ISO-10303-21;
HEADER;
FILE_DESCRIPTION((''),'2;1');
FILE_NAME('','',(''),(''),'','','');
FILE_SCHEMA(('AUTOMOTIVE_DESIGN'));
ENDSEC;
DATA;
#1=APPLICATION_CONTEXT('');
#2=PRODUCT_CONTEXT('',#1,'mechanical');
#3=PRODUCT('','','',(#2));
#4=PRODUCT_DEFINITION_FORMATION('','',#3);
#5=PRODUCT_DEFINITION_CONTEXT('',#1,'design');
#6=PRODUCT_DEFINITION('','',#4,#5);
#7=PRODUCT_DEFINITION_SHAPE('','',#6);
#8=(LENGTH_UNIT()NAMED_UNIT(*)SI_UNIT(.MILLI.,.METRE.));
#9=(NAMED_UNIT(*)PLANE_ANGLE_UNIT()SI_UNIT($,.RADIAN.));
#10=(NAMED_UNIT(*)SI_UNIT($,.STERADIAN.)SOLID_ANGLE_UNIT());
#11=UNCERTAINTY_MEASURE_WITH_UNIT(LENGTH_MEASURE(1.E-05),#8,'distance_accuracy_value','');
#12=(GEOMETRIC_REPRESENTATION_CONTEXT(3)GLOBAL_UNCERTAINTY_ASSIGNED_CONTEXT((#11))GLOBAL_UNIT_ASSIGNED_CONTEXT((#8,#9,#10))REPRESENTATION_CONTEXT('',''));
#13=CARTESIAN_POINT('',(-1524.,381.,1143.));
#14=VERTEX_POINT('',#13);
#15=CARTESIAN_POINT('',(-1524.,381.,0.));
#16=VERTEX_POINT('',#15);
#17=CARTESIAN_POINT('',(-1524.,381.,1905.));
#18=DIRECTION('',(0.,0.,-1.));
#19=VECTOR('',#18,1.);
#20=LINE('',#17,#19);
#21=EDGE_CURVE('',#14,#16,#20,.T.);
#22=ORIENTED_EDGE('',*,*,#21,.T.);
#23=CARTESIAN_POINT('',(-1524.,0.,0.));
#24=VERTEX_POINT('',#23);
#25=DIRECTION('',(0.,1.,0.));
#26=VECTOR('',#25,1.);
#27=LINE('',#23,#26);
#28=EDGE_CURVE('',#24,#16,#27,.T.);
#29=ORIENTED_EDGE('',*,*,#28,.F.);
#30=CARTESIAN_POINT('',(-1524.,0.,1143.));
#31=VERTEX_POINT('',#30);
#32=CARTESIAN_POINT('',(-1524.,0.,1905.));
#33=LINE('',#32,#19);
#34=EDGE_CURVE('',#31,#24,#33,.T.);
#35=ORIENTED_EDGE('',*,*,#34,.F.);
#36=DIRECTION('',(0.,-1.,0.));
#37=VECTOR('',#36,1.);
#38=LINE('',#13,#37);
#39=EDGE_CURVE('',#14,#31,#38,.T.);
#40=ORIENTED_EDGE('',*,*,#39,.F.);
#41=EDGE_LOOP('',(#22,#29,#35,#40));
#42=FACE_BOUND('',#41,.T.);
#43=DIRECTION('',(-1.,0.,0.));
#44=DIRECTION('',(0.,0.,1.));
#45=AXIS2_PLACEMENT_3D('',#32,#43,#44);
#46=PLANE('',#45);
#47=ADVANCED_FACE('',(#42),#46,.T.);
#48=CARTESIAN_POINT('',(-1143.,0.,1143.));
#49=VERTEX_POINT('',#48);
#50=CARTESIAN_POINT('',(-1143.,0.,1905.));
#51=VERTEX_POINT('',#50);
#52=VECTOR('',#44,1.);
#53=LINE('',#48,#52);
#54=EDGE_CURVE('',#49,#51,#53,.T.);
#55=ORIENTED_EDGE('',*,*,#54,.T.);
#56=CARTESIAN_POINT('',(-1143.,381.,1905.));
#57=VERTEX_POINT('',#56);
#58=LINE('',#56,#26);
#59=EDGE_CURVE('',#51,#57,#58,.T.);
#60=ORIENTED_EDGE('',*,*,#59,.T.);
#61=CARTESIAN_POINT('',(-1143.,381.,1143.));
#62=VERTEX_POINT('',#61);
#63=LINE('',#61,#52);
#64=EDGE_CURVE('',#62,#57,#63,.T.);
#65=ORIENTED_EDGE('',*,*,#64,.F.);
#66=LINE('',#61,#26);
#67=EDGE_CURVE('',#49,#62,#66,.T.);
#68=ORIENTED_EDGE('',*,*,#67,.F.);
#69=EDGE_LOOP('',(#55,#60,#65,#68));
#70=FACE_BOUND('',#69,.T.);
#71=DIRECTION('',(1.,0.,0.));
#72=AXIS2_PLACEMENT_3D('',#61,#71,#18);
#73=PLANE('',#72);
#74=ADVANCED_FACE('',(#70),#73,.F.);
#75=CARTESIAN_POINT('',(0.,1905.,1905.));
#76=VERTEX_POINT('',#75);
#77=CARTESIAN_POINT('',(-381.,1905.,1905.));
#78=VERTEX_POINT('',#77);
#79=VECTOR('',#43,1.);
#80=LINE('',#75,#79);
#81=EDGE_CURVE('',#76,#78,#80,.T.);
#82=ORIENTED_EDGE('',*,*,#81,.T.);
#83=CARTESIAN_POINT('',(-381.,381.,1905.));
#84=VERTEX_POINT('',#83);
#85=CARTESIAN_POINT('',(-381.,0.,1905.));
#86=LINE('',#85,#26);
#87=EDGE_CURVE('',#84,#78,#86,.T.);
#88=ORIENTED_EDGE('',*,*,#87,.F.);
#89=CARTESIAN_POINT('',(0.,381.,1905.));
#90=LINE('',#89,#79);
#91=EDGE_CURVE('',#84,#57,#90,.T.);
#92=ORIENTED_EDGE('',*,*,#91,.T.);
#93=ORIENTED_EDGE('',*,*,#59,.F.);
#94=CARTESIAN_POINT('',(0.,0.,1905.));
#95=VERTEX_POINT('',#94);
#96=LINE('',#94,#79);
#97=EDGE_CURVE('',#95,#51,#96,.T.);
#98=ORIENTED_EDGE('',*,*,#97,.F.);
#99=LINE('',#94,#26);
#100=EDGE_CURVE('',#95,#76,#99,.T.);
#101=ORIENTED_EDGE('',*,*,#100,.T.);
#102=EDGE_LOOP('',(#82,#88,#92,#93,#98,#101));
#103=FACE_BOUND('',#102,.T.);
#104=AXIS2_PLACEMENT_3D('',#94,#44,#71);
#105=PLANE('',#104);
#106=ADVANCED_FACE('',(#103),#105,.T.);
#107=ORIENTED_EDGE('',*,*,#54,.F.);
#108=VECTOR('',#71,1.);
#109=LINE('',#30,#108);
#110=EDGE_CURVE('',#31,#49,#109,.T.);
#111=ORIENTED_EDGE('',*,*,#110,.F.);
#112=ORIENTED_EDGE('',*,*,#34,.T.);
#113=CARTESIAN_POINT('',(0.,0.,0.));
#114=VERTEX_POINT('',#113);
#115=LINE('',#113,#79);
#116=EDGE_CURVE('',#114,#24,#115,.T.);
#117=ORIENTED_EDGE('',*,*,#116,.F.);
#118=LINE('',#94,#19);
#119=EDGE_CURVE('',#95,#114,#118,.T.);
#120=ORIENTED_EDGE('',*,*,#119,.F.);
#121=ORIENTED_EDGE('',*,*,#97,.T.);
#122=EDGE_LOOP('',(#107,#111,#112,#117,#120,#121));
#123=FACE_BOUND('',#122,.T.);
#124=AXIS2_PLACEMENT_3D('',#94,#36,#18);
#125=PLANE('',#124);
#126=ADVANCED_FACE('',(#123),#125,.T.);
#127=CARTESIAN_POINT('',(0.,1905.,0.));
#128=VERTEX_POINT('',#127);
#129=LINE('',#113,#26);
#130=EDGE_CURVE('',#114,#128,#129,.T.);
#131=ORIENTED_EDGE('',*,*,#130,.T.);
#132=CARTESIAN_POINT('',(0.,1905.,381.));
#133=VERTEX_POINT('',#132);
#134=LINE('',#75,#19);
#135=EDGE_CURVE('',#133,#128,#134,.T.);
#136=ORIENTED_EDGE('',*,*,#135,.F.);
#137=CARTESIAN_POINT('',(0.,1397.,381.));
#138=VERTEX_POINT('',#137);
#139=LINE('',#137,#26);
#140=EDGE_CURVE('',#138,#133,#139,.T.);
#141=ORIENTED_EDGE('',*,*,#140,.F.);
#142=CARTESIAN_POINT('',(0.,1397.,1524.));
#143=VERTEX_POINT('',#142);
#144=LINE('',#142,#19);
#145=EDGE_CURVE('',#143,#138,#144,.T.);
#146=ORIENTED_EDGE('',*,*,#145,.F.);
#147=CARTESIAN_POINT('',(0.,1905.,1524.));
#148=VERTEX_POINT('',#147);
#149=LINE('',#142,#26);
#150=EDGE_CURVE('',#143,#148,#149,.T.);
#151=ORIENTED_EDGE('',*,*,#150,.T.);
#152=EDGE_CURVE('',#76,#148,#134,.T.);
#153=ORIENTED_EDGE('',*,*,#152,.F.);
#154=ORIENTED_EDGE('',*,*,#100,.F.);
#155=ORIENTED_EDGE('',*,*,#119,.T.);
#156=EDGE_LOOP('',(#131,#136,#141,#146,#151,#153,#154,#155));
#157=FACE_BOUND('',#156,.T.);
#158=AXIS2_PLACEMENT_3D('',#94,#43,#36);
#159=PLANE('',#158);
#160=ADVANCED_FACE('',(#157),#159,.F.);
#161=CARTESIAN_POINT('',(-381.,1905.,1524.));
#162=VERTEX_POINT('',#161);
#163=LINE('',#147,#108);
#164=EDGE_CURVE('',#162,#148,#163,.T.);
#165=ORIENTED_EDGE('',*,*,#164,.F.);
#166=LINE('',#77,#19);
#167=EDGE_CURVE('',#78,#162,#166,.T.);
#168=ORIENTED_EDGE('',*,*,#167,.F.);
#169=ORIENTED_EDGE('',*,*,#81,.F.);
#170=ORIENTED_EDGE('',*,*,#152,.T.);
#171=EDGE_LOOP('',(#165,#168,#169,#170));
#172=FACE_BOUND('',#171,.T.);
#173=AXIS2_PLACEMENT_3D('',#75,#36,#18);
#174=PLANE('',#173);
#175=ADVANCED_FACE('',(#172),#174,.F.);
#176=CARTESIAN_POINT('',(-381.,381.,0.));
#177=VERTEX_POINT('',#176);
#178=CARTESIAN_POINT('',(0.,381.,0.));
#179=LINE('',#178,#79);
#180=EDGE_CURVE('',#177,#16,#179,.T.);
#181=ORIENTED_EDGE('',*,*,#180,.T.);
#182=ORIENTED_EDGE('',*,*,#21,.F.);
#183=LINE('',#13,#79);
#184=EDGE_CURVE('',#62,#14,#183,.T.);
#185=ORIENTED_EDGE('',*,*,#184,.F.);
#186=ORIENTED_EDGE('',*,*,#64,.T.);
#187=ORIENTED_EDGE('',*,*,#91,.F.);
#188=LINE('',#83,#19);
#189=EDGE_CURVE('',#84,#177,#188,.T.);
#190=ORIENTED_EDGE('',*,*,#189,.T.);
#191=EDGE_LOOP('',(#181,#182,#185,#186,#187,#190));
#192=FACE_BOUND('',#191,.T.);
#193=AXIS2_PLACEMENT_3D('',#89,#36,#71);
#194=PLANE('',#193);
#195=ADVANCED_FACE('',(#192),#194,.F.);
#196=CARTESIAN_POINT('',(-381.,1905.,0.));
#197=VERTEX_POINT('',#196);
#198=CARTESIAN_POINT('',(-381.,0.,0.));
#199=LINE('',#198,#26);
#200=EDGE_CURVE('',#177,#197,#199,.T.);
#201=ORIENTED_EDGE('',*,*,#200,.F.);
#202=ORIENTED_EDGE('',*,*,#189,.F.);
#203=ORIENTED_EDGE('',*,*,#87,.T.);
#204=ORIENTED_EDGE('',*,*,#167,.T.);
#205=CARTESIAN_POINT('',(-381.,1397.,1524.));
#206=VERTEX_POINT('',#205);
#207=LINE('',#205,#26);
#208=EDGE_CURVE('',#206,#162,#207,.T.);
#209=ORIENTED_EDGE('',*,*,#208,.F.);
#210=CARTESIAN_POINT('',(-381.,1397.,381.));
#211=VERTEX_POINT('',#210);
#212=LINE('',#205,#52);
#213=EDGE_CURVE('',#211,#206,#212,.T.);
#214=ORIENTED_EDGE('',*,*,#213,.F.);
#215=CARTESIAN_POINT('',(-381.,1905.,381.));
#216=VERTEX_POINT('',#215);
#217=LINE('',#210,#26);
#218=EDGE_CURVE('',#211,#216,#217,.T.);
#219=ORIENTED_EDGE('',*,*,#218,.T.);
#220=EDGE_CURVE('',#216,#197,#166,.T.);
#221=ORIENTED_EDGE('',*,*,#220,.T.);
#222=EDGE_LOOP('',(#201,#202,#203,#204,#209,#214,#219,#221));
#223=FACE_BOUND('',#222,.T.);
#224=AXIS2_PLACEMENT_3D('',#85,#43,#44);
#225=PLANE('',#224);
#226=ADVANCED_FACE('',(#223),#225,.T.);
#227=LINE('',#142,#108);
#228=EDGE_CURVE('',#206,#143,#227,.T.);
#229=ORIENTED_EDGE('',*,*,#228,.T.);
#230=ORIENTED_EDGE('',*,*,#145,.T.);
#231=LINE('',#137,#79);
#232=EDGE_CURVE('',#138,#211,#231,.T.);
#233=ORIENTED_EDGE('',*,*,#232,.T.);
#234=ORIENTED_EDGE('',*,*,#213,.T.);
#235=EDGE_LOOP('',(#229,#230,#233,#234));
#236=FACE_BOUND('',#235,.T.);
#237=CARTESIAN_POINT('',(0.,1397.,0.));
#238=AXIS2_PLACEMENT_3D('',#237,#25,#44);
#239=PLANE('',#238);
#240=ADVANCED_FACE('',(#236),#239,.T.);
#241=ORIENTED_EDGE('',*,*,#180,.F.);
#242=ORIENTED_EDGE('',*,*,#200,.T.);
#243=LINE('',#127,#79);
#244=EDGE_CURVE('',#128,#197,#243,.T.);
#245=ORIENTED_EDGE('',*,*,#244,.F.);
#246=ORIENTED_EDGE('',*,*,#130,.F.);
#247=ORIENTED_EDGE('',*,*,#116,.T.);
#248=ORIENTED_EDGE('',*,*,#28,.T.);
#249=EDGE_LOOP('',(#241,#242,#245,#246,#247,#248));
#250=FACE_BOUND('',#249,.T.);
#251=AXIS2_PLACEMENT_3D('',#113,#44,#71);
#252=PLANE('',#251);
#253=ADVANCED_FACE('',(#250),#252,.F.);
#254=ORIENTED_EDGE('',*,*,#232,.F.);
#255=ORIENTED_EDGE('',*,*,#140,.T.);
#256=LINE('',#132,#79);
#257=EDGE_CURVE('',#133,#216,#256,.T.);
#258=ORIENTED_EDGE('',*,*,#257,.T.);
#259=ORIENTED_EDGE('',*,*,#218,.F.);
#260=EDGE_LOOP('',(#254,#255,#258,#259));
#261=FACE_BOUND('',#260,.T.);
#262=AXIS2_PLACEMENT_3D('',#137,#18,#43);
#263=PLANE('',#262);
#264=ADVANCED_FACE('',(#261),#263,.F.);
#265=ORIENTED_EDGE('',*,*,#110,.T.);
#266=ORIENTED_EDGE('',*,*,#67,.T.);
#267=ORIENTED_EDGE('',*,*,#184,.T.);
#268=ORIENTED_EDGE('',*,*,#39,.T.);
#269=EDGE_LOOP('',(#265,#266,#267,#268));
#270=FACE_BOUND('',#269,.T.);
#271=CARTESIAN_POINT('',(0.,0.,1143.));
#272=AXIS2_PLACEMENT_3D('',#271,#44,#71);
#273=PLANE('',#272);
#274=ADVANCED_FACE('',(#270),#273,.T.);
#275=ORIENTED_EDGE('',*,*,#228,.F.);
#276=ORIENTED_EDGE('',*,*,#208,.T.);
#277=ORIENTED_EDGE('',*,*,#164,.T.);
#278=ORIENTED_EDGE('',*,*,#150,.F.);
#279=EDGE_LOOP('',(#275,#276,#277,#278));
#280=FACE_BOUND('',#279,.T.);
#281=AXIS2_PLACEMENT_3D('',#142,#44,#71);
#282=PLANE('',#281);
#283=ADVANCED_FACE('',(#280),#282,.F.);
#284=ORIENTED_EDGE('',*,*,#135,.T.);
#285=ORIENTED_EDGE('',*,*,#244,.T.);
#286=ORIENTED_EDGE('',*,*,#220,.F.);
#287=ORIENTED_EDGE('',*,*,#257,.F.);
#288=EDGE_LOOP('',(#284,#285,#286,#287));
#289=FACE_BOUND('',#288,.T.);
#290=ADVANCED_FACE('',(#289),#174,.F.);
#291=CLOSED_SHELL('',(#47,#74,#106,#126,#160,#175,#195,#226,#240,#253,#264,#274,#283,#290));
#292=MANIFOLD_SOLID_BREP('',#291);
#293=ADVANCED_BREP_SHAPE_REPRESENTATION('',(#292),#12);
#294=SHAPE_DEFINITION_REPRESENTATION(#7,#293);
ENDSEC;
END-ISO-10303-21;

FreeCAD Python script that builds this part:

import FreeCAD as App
import Part
import Sketcher

V = App.Vector
Q = App.Units.Quantity


def add_polygon(sketch, points):
    """Adds a closed chain of lines whose ends are joined by coincident constraints."""
    first, n = sketch.GeometryCount, len(points)
    for a, b in zip(points, points[1:] + points[:1]):
        sketch.addGeometry(Part.LineSegment(App.Vector(*a, 0), App.Vector(*b, 0)), False)
    for i in range(n):
        sketch.addConstraint(Sketcher.Constraint("Coincident", first + i, 2, first + (i + 1) % n, 1))

doc = App.newDocument("Part")
params = doc.addObject("Spreadsheet::Sheet", "Params")
for row, (alias, value) in enumerate([
    ("sketch1_width", "15 in"),
    ("sketch1_width2", "45 in"),
    ("pad1_length", "75 in"),
    ("sketch2_width", "15 in"),
    ("sketch2_height", "45 in"),
    ("pocket1_length", "20 in"),
    ("sketch3_width", "15 in"),
    ("pocket2_length", "30 in"),
], start=1):
    params.set(f"A{row}", alias)
    params.set(f"B{row}", "=" + value)
    params.setAlias(f"B{row}", alias)

body = doc.addObject("PartDesign::Body", "Body")

sketch1 = body.newObject("Sketcher::SketchObject", "Sketch")
sketch1.AttachmentSupport = (doc.getObject("XY_Plane"), [""])
sketch1.MapMode = "FlatFace"
add_polygon(sketch1, [(0, 0), (0, 1905), (-381, 1905), (-381, 381), (-1524, 381), (-1524, 0)])
sketch1.addConstraint([
    Sketcher.Constraint("Vertical", 0),
    Sketcher.Constraint("Horizontal", 1),
    Sketcher.Constraint("Vertical", 2),
    Sketcher.Constraint("Horizontal", 3),
    Sketcher.Constraint("Vertical", 4),
    Sketcher.Constraint("Horizontal", 5),
    Sketcher.Constraint("Coincident", 5, 2, -1, 1),
    Sketcher.Constraint("Equal", 5, 2),
    Sketcher.Constraint("Equal", 1, 4),
    Sketcher.Constraint("DistanceX", 1, 2, 1, 1, Q("15 in")),
    Sketcher.Constraint("DistanceX", 3, 2, 3, 1, Q("45 in")),
])
sketch1.setExpression("Constraints[15]", "Params.sketch1_width")
sketch1.setExpression("Constraints[16]", "Params.sketch1_width2")
pad1 = body.newObject("PartDesign::Pad", "Pad")
pad1.Profile = sketch1
pad1.setExpression("Length", "Params.pad1_length")

sketch2 = body.newObject("Sketcher::SketchObject", "Sketch001")
sketch2.AttachmentSupport = (doc.getObject("XZ_Plane"), [""])
sketch2.MapMode = "FlatFace"
sketch2.AttachmentOffset = App.Placement(V(0, 0, -75 * 25.4), App.Rotation())
add_polygon(sketch2, [(-381, 381), (-381, 1524), (0, 1524), (0, 381)])
sketch2.addConstraint([
    Sketcher.Constraint("Vertical", 0),
    Sketcher.Constraint("Horizontal", 1),
    Sketcher.Constraint("Vertical", 2),
    Sketcher.Constraint("Horizontal", 3),
    Sketcher.Constraint("PointOnObject", 1, 2, -2),
    Sketcher.Constraint("DistanceX", 1, 1, 1, 2, Q("15 in")),
    Sketcher.Constraint("DistanceY", 0, 1, 0, 2, Q("45 in")),
    Sketcher.Constraint("DistanceY", -1, 1, 0, 2, Q("60 in")),
])
sketch2.setExpression("Constraints[9]", "Params.sketch2_width")
sketch2.setExpression("Constraints[10]", "Params.sketch2_height")
pocket1 = body.newObject("PartDesign::Pocket", "Pocket")
pocket1.Profile = sketch2
pocket1.setExpression("Length", "Params.pocket1_length")
pocket1.Reversed = True

sketch3 = body.newObject("Sketcher::SketchObject", "Sketch002")
sketch3.AttachmentSupport = (doc.getObject("XY_Plane"), [""])
sketch3.MapMode = "FlatFace"
sketch3.AttachmentOffset = App.Placement(V(0, 0, 75 * 25.4), App.Rotation())
add_polygon(sketch3, [(-1524, 381), (-1524, 0), (-1143, 0), (-1143, 381)])
sketch3.addConstraint([
    Sketcher.Constraint("Vertical", 0),
    Sketcher.Constraint("Horizontal", 1),
    Sketcher.Constraint("Vertical", 2),
    Sketcher.Constraint("Horizontal", 3),
    Sketcher.Constraint("PointOnObject", 0, 2, -1),
    Sketcher.Constraint("Equal", 3, 0),
    Sketcher.Constraint("DistanceX", 1, 1, 1, 2, Q("15 in")),
    Sketcher.Constraint("DistanceX", 0, 2, -1, 1, Q("60 in")),
])
sketch3.setExpression("Constraints[10]", "Params.sketch3_width")
pocket2 = body.newObject("PartDesign::Pocket", "Pocket001")
pocket2.Profile = sketch3
pocket2.setExpression("Length", "Params.pocket2_length")

doc.recompute()
